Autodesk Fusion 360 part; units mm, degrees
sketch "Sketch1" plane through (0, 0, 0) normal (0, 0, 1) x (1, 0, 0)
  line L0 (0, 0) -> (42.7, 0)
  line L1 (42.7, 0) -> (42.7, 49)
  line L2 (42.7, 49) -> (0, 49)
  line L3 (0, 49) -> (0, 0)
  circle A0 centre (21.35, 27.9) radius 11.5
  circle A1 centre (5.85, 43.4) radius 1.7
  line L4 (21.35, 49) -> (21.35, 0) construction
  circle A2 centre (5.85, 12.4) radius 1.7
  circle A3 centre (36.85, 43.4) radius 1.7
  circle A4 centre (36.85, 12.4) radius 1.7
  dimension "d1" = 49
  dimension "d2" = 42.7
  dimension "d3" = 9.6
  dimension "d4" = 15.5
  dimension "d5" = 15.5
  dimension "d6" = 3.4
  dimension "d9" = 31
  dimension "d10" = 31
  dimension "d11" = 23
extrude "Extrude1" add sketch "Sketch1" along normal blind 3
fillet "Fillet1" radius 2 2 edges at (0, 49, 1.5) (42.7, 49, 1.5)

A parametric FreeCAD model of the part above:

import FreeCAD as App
import Part
import Sketcher


def edges_at(feature, points):
    """Names of the edges that pass closest to the given points."""
    edges = feature.Shape.Edges
    near = lambda p: min(range(len(edges)), key=lambda i: edges[i].distToShape(Part.Vertex(*p))[0])
    return sorted({f"Edge{near(p) + 1}" for p in points})

doc = App.newDocument("Part")
params = doc.addObject("Spreadsheet::Sheet", "Params")
for row, (alias, value) in enumerate([
    ("sketch1_diameter", "23 mm"),
    ("sketch1_diameter2", "3.4 mm"),
    ("sketch1_height", "49 mm"),
    ("sketch1_width", "42.7 mm"),
    ("pad1_length", "3 mm"),
    ("fillet_radius", "2 mm"),
], start=1):
    params.set(f"A{row}", alias)
    params.set(f"B{row}", "=" + value)
    params.setAlias(f"B{row}", alias)

body = doc.addObject("PartDesign::Body", "Body")

# Sketch on XY plane
sketch1 = body.newObject("Sketcher::SketchObject", "Sketch")
sketch1.AttachmentSupport = (doc.getObject("XY_Plane"), [""])
sketch1.MapMode = "FlatFace"
sketch1.addGeometry(Part.LineSegment(App.Vector(0, 49, 0), App.Vector(0, 0, 0)), False)
sketch1.addGeometry(Part.LineSegment(App.Vector(0, 0, 0), App.Vector(42.7, 0, 0)), False)
sketch1.addGeometry(Part.LineSegment(App.Vector(42.7, 0, 0), App.Vector(42.7, 49, 0)), False)
sketch1.addGeometry(Part.LineSegment(App.Vector(42.7, 49, 0), App.Vector(0, 49, 0)), False)
sketch1.addGeometry(Part.Circle(App.Vector(5.85, 12.4, 0), App.Vector(0, 0, 1), 1.7), False)
sketch1.addGeometry(Part.Circle(App.Vector(36.85, 12.4, 0), App.Vector(0, 0, 1), 1.7), False)
sketch1.addGeometry(Part.Circle(App.Vector(5.85, 43.4, 0), App.Vector(0, 0, 1), 1.7), False)
sketch1.addGeometry(Part.Circle(App.Vector(21.35, 27.9, 0), App.Vector(0, 0, 1), 11.5), False)
sketch1.addGeometry(Part.Circle(App.Vector(36.85, 43.4, 0), App.Vector(0, 0, 1), 1.7), False)
sketch1.addConstraint(Sketcher.Constraint("Coincident", 0, 2, 1, 1))
sketch1.addConstraint(Sketcher.Constraint("Coincident", 1, 2, 2, 1))
sketch1.addConstraint(Sketcher.Constraint("Coincident", 2, 2, 3, 1))
sketch1.addConstraint(Sketcher.Constraint("Coincident", 3, 2, 0, 1))
sketch1.addConstraint(Sketcher.Constraint("Vertical", 0))
sketch1.addConstraint(Sketcher.Constraint("Horizontal", 1))
sketch1.addConstraint(Sketcher.Constraint("Vertical", 2))
sketch1.addConstraint(Sketcher.Constraint("Horizontal", 3))
sketch1.addConstraint(Sketcher.Constraint("Coincident", 0, 2, -1, 1))
sketch1.addConstraint(Sketcher.Constraint("Equal", 4, 5))
sketch1.addConstraint(Sketcher.Constraint("Equal", 5, 6))
sketch1.addConstraint(Sketcher.Constraint("Equal", 6, 8))
sketch1.addConstraint(Sketcher.Constraint("Horizontal", 4, 3, 5, 3))
sketch1.addConstraint(Sketcher.Constraint("Horizontal", 6, 3, 8, 3))
sketch1.addConstraint(Sketcher.Constraint("Vertical", 4, 3, 6, 3))
sketch1.addConstraint(Sketcher.Constraint("Vertical", 5, 3, 8, 3))
sketch1.addConstraint(Sketcher.Constraint("Diameter", 7, 23.0))
sketch1.addConstraint(Sketcher.Constraint("Diameter", 4, 3.4))
sketch1.addConstraint(Sketcher.Constraint("DistanceY", 0, 2, 0, 1, 49.0))
sketch1.addConstraint(Sketcher.Constraint("DistanceX", 1, 1, 1, 2, 42.7))
sketch1.addConstraint(Sketcher.Constraint("DistanceX", 4, 3, 5, 3, 31.0))
sketch1.addConstraint(Sketcher.Constraint("DistanceY", 4, 3, 6, 3, 31.0))
sketch1.addConstraint(Sketcher.Constraint("DistanceX", 4, 3, 7, 3, 15.5))
sketch1.addConstraint(Sketcher.Constraint("DistanceY", 4, 3, 7, 3, 15.5))
sketch1.addConstraint(Sketcher.Constraint("DistanceY", -1, 1, 4, 3, 12.4))
sketch1.addConstraint(Sketcher.Constraint("DistanceX", -1, 1, 4, 3, 5.85))
sketch1.setExpression("Constraints[16]", "Params.sketch1_diameter")
sketch1.setExpression("Constraints[17]", "Params.sketch1_diameter2")
sketch1.setExpression("Constraints[18]", "Params.sketch1_height")
sketch1.setExpression("Constraints[19]", "Params.sketch1_width")
pad1 = body.newObject("PartDesign::Pad", "Pad")
pad1.Profile = sketch1
pad1.setExpression("Length", "Params.pad1_length")
doc.recompute()

fillet = body.newObject("PartDesign::Fillet", "Fillet")
fillet.Base = (pad1, edges_at(pad1, [(0, 49, 1.5), (42.7, 49, 1.5)]))
fillet.setExpression("Radius", "Params.fillet_radius")

doc.recompute()
